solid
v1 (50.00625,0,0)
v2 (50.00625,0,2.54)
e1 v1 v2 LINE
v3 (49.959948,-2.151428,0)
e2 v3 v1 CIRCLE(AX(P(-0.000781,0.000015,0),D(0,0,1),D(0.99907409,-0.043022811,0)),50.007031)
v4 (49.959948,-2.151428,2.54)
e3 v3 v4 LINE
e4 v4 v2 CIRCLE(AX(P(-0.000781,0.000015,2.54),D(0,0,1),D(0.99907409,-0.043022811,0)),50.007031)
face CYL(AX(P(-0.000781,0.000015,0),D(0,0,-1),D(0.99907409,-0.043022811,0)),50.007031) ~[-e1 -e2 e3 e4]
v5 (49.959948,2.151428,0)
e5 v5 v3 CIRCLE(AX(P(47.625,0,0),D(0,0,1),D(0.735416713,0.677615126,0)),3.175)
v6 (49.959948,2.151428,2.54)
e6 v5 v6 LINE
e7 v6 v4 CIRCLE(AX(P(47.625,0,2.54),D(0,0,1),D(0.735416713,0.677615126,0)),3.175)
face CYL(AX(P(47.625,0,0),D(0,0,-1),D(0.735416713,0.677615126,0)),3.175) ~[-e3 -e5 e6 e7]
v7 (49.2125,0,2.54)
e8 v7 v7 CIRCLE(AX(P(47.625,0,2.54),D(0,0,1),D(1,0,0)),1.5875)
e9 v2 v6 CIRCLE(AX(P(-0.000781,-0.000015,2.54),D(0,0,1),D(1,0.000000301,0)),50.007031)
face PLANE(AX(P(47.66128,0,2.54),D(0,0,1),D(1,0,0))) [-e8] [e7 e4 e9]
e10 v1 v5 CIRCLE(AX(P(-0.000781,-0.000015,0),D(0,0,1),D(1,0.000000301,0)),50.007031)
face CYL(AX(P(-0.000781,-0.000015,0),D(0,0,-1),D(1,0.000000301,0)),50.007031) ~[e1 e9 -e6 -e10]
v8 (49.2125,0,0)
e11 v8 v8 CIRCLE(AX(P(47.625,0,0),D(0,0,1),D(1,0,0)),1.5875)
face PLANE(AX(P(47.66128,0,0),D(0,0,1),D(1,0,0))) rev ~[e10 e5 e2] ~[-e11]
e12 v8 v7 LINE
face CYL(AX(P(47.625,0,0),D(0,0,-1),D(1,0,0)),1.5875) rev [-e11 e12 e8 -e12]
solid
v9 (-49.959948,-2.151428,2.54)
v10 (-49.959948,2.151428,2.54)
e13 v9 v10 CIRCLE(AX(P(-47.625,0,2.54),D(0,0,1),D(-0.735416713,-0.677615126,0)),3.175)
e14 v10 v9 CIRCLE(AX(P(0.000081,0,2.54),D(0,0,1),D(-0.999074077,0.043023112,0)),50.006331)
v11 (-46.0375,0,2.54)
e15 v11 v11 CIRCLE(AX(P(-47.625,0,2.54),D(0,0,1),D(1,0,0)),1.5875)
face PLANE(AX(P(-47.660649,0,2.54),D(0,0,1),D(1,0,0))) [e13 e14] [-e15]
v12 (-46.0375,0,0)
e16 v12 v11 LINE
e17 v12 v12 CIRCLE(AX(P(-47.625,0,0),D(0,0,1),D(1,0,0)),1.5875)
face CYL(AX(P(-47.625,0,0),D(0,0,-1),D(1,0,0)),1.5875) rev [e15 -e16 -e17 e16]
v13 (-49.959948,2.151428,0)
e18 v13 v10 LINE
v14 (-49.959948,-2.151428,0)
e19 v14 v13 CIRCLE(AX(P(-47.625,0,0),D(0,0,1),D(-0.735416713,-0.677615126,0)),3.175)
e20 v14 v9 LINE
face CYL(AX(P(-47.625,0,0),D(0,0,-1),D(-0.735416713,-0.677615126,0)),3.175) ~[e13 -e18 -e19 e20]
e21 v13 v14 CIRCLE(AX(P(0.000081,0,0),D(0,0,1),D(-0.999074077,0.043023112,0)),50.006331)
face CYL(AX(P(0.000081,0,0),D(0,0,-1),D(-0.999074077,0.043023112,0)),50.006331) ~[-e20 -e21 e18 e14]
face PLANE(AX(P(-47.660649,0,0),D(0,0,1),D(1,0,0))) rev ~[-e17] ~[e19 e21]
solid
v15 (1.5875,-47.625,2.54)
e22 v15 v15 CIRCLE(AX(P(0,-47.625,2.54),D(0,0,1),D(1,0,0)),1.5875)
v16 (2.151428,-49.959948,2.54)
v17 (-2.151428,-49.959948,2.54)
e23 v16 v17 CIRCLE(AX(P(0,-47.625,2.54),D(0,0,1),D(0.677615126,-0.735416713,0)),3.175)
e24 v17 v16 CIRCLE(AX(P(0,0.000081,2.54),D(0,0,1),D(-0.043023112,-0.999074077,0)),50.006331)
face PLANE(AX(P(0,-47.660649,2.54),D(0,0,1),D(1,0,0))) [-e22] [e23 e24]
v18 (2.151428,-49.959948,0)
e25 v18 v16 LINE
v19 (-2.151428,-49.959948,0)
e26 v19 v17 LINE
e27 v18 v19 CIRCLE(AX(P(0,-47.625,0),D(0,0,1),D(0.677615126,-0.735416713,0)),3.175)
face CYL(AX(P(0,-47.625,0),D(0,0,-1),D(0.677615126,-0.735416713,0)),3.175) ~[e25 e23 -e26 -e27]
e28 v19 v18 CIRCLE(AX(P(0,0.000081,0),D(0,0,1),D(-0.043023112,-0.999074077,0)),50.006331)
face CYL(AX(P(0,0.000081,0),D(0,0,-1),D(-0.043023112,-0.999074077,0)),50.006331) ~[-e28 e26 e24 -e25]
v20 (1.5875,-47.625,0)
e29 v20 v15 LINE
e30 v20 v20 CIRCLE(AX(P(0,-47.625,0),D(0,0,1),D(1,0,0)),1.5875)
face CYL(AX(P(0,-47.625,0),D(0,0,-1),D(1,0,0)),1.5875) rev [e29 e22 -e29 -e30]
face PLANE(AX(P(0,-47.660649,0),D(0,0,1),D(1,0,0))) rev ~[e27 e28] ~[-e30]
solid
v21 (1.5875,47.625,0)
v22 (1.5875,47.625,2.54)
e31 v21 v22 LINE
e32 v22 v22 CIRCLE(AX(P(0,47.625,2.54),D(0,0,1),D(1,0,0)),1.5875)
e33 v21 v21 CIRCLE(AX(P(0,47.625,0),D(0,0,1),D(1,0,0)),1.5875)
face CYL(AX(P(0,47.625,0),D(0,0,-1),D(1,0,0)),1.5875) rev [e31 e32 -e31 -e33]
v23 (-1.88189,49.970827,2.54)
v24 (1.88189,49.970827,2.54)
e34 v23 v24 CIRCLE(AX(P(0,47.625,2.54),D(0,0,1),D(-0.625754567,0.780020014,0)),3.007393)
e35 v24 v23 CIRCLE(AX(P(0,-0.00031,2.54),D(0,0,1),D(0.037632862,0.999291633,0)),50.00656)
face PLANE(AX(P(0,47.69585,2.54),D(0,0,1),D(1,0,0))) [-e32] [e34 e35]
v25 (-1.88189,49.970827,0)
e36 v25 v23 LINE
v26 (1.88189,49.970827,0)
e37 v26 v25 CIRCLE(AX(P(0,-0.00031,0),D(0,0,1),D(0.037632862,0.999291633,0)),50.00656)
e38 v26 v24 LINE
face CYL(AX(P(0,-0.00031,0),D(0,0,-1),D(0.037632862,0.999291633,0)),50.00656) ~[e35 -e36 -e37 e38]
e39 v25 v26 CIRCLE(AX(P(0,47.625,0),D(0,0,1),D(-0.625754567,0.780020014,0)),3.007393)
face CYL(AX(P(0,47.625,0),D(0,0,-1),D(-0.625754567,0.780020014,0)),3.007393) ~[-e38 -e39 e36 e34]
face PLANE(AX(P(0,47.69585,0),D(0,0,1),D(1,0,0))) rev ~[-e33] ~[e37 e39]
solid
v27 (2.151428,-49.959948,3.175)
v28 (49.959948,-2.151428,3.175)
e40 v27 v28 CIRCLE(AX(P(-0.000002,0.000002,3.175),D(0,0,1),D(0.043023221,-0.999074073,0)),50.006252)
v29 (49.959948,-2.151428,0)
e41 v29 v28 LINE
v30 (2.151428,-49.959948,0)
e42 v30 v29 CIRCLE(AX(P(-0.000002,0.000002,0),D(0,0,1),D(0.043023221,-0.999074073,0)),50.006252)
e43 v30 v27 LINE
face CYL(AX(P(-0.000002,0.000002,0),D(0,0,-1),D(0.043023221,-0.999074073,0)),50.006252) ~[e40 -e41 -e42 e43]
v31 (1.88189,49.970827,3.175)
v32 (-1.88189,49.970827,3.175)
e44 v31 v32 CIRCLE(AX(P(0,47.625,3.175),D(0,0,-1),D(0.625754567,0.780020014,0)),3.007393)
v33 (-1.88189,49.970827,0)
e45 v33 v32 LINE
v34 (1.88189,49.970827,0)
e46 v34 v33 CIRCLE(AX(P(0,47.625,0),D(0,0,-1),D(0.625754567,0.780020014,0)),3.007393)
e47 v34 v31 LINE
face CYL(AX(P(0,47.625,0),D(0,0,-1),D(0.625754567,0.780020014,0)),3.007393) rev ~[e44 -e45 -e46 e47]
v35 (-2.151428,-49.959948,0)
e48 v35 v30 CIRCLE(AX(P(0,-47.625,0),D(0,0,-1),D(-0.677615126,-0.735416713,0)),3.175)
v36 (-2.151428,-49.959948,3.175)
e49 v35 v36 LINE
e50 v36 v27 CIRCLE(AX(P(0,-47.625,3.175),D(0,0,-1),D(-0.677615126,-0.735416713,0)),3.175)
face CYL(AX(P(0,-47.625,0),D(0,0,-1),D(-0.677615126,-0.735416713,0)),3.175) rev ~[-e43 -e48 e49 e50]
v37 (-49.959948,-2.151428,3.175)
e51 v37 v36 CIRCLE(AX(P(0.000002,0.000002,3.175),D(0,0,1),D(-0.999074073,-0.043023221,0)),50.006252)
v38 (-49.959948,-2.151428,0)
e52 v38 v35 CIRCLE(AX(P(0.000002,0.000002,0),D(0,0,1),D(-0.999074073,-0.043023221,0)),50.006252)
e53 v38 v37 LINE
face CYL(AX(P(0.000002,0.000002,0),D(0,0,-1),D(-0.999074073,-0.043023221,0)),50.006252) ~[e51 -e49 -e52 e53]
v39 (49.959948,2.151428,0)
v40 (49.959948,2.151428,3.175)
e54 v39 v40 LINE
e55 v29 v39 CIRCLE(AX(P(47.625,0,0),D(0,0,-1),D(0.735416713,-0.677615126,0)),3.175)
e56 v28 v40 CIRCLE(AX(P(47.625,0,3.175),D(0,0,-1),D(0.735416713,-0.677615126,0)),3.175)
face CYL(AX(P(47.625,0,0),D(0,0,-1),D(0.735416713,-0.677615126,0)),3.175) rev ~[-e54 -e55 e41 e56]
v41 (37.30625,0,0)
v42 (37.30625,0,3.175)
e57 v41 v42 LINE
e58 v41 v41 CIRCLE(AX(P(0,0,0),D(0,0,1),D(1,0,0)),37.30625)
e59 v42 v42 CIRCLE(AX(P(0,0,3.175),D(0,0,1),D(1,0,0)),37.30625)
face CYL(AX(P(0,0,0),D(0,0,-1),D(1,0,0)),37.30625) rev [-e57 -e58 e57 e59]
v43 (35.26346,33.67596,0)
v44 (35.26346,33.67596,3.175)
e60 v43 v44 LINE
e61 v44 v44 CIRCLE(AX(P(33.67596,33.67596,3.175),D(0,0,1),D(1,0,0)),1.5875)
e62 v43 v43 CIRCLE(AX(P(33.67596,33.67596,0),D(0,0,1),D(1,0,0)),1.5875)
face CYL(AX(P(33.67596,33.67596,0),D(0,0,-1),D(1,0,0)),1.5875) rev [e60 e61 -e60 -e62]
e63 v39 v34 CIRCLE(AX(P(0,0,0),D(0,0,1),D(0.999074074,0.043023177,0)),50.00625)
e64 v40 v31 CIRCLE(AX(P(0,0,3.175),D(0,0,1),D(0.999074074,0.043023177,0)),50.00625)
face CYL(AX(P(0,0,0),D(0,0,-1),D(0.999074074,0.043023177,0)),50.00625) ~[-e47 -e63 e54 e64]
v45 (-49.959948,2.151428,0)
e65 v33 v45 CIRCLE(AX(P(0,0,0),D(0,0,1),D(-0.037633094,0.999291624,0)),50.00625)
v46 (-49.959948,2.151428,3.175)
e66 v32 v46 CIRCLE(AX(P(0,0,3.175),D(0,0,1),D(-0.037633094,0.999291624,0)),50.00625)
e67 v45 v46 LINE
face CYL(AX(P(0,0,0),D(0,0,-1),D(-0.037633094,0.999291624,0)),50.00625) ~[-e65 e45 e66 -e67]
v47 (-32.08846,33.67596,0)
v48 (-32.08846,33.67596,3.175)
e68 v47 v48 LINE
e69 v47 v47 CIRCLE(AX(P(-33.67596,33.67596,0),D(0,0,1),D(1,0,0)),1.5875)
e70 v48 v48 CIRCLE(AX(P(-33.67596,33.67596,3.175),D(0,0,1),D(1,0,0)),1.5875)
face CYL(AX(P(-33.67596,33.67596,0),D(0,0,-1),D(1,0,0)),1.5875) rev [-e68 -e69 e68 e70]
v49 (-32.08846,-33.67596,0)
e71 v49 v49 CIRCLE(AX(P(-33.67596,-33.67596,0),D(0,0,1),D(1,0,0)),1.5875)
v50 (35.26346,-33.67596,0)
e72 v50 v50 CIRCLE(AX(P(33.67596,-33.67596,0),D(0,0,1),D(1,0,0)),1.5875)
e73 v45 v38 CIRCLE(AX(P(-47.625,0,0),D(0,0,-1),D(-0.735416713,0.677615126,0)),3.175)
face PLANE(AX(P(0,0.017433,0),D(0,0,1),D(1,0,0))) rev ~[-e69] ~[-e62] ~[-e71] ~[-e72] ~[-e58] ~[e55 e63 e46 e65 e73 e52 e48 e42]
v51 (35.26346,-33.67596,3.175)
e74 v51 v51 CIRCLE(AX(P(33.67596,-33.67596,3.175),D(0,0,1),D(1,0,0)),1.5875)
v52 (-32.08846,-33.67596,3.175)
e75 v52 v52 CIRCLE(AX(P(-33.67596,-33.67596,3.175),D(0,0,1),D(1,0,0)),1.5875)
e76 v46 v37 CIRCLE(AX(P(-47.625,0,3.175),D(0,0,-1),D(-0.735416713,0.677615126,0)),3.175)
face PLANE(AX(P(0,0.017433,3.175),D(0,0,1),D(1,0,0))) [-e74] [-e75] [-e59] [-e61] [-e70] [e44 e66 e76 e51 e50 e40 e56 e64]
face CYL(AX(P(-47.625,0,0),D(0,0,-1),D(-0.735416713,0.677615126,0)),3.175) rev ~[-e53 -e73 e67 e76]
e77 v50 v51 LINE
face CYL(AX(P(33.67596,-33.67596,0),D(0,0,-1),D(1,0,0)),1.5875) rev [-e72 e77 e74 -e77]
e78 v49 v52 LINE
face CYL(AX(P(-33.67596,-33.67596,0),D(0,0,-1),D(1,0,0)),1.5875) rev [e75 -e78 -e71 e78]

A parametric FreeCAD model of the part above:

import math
import FreeCAD as App
import Part
import Sketcher
from FreeCAD import Vector
Q = App.Units.Quantity

doc = App.newDocument("Part")
body = doc.addObject("PartDesign::Body", "Body")
body.AllowCompound = True

sketch1 = body.newObject("Sketcher::SketchObject", "Sketch")
sketch1.AttachmentSupport = (doc.getObject("XY_Plane"), [""])
sketch1.MapMode = "FlatFace"
sketch1.addGeometry([
    Part.ArcOfCircle(Part.Circle(Vector(0, 47.6, 0), Vector(0, 0, 1), 3), math.radians(129), math.radians(411)),
    Part.ArcOfCircle(Part.Circle(Vector(0, 0, 0), Vector(0, 0, 1), 50), math.radians(87.84), math.radians(92.16)),
    Part.Circle(Vector(0, 47.6, 0), Vector(0, 0, 1), 1.6),
    Part.ArcOfCircle(Part.Circle(Vector(-47.6, 0, 0), Vector(0, 0, 1), 3.2), math.radians(-137), math.radians(137)),
    Part.ArcOfCircle(Part.Circle(Vector(0, 0, 0), Vector(0, 0, 1), 50), math.radians(177.53), math.radians(182.47)),
    Part.Circle(Vector(-47.6, 0, 0), Vector(0, 0, 1), 1.6),
    Part.ArcOfCircle(Part.Circle(Vector(0, 0, 0), Vector(0, 0, 1), 50), math.radians(-92.47), math.radians(-87.53)),
    Part.ArcOfCircle(Part.Circle(Vector(0, -47.6, 0), Vector(0, 0, 1), 3.2), math.radians(-47), math.radians(227)),
    Part.Circle(Vector(0, -47.6, 0), Vector(0, 0, 1), 1.6),
    Part.ArcOfCircle(Part.Circle(Vector(0, 0, 0), Vector(0, 0, 1), 50), math.radians(-2.47), math.radians(0)),
    Part.ArcOfCircle(Part.Circle(Vector(0, 0, 0), Vector(0, 0, 1), 50), math.radians(0), math.radians(2.47)),
    Part.ArcOfCircle(Part.Circle(Vector(47.6, 0, 0), Vector(0, 0, 1), 3.2), math.radians(43), math.radians(317)),
    Part.Circle(Vector(47.6, 0, 0), Vector(0, 0, 1), 1.6),
], False)
sketch1.addConstraint([
    Sketcher.Constraint("Coincident", 0, 1, 1, 2),
    Sketcher.Constraint("Coincident", 1, 1, 0, 2),
    Sketcher.Constraint("Coincident", 3, 1, 4, 2),
    Sketcher.Constraint("Coincident", 4, 1, 3, 2),
    Sketcher.Constraint("Coincident", 6, 1, 7, 2),
    Sketcher.Constraint("Coincident", 7, 1, 6, 2),
    Sketcher.Constraint("Tangent", 9, 2, 10, 1),
    Sketcher.Constraint("Coincident", 10, 2, 11, 1),
    Sketcher.Constraint("Coincident", 11, 2, 9, 1),
    Sketcher.Constraint("Coincident", 2, 3, 0, 3),
    Sketcher.Constraint("Coincident", 5, 3, 3, 3),
    Sketcher.Constraint("Coincident", 8, 3, 7, 3),
    Sketcher.Constraint("Coincident", 12, 3, 11, 3),
    Sketcher.Constraint("Equal", 2, 5),
    Sketcher.Constraint("Equal", 4, 6),
    Sketcher.Constraint("Equal", 3, 7),
    Sketcher.Constraint("Equal", 5, 8),
    Sketcher.Constraint("Equal", 9, 10),
    Sketcher.Constraint("Equal", 7, 11),
    Sketcher.Constraint("Equal", 8, 12),
    Sketcher.Constraint("Symmetric", 0, 3, 7, 3, -1, 1),
    Sketcher.Constraint("Symmetric", 3, 3, 11, 3, -1, 1),
    Sketcher.Constraint("Symmetric", 0, 1, 1, 1, -2),
    Sketcher.Constraint("Symmetric", 4, 1, 10, 2, -2),
    Sketcher.Constraint("PointOnObject", 4, 3, -1),
    Sketcher.Constraint("PointOnObject", 6, 3, -2),
    Sketcher.Constraint("PointOnObject", 9, 2, -1),
    Sketcher.Constraint("Horizontal", 3, 1, 11, 2),
    Sketcher.Constraint("Diameter", 2, Q("0.125 in")),
    Sketcher.Constraint("Radius", 3, Q("0.125 in")),
    Sketcher.Constraint("DistanceY", -1, 1, 0, 3, Q("1.875 in")),
    Sketcher.Constraint("DistanceX", 3, 3, -1, 1, Q("1.875 in")),
    Sketcher.Constraint("DistanceX", -1, 1, 9, 2, Q("1.96875 in")),
    Sketcher.Constraint("Radius", 1, 50.00656),
    Sketcher.Constraint("Radius", 4, 50.006331),
    Sketcher.Constraint("Radius", 9, 50.007031),
    Sketcher.Constraint("Radius", 0, 3.007393),
    Sketcher.Constraint("DistanceY", 1, 3, -1, 1, 0.00031),
    Sketcher.Constraint("DistanceX", -1, 1, 7, 1, 2.151428),
])
pad1 = body.newObject("PartDesign::Pad", "Pad")
pad1.Profile = sketch1
pad1.Length = Q("0.1 in")
body2 = doc.addObject("PartDesign::Body", "Body001")

sketch2 = body2.newObject("Sketcher::SketchObject", "Sketch001")
sketch2.AttachmentSupport = (doc.getObject("XY_Plane001"), [""])
sketch2.MapMode = "FlatFace"
sketch2.addGeometry([
    Part.ArcOfCircle(Part.Circle(Vector(47.6, 0, 0), Vector(0, 0, 1), 3.2), math.radians(43), math.radians(317)),
    Part.ArcOfCircle(Part.Circle(Vector(0, 0, 0), Vector(0, 0, 1), 50), math.radians(2), math.radians(88)),
    Part.ArcOfCircle(Part.Circle(Vector(0, 47.6, 0), Vector(0, 0, 1), 3), math.radians(129), math.radians(411)),
    Part.ArcOfCircle(Part.Circle(Vector(0, 0, 0), Vector(0, 0, 1), 50), math.radians(92), math.radians(178)),
    Part.ArcOfCircle(Part.Circle(Vector(-47.6, 0, 0), Vector(0, 0, 1), 3.2), math.radians(-137), math.radians(137)),
    Part.ArcOfCircle(Part.Circle(Vector(0, 0, 0), Vector(0, 0, 1), 50), math.radians(-178), math.radians(-92)),
    Part.ArcOfCircle(Part.Circle(Vector(0, -47.6, 0), Vector(0, 0, 1), 3.2), math.radians(-47), math.radians(227)),
    Part.ArcOfCircle(Part.Circle(Vector(0, 0, 0), Vector(0, 0, 1), 50), math.radians(-88), math.radians(-2)),
    Part.Circle(Vector(-33.7, -33.7, 0), Vector(0, 0, 1), 1.6),
    Part.Circle(Vector(33.7, -33.7, 0), Vector(0, 0, 1), 1.6),
    Part.Circle(Vector(-33.7, 33.7, 0), Vector(0, 0, 1), 1.6),
    Part.Circle(Vector(0, 0, 0), Vector(0, 0, 1), 37.3),
    Part.Circle(Vector(33.7, 33.7, 0), Vector(0, 0, 1), 1.6),
], False)
sketch2.addConstraint([
    Sketcher.Constraint("Coincident", 0, 1, 1, 1),
    Sketcher.Constraint("Coincident", 1, 2, 2, 2),
    Sketcher.Constraint("Coincident", 2, 1, 3, 1),
    Sketcher.Constraint("Coincident", 3, 2, 4, 2),
    Sketcher.Constraint("Coincident", 4, 1, 5, 1),
    Sketcher.Constraint("Coincident", 5, 2, 6, 2),
    Sketcher.Constraint("Coincident", 6, 1, 7, 1),
    Sketcher.Constraint("Coincident", 7, 2, 0, 2),
    Sketcher.Constraint("Coincident", 1, 3, -1, 1),
    Sketcher.Constraint("Coincident", 3, 3, -1, 1),
    Sketcher.Constraint("Coincident", 5, 3, -1, 1),
    Sketcher.Constraint("Coincident", 7, 3, -1, 1),
    Sketcher.Constraint("Coincident", 11, 3, -1, 1),
    Sketcher.Constraint("Equal", 1, 3),
    Sketcher.Constraint("Equal", 0, 4),
    Sketcher.Constraint("Equal", 4, 6),
    Sketcher.Constraint("Equal", 5, 7),
    Sketcher.Constraint("Equal", 8, 9),
    Sketcher.Constraint("Equal", 9, 10),
    Sketcher.Constraint("Equal", 10, 12),
    Sketcher.Constraint("Symmetric", 0, 3, 4, 3, -1, 1),
    Sketcher.Constraint("Symmetric", 2, 3, 6, 3, -1, 1),
    Sketcher.Constraint("Symmetric", 9, 3, 10, 3, -1, 1),
    Sketcher.Constraint("Symmetric", 8, 3, 12, 3, -1, 1),
    Sketcher.Constraint("Symmetric", 8, 3, 9, 3, -2),
    Sketcher.Constraint("Symmetric", 3, 2, 4, 1, -1),
    Sketcher.Constraint("PointOnObject", 2, 3, -2),
    Sketcher.Constraint("Diameter", 8, Q("0.125 in")),
    Sketcher.Constraint("Diameter", 11, Q("2.9375 in")),
    Sketcher.Constraint("Radius", 0, Q("0.125 in")),
    Sketcher.Constraint("Radius", 1, Q("1.96875 in")),
    Sketcher.Constraint("DistanceX", 4, 3, 0, 3, Q("3.75 in")),
    Sketcher.Constraint("DistanceY", -1, 1, 2, 3, Q("1.875 in")),
    Sketcher.Constraint("Radius", 2, 3.007393),
    Sketcher.Constraint("DistanceX", 8, 3, -1, 1, 33.67596),
    Sketcher.Constraint("DistanceY", 8, 3, -1, 1, 33.67596),
])
pad2 = body2.newObject("PartDesign::Pad", "Pad001")
pad2.Profile = sketch2
pad2.Length = Q("0.125 in")

doc.recompute()
